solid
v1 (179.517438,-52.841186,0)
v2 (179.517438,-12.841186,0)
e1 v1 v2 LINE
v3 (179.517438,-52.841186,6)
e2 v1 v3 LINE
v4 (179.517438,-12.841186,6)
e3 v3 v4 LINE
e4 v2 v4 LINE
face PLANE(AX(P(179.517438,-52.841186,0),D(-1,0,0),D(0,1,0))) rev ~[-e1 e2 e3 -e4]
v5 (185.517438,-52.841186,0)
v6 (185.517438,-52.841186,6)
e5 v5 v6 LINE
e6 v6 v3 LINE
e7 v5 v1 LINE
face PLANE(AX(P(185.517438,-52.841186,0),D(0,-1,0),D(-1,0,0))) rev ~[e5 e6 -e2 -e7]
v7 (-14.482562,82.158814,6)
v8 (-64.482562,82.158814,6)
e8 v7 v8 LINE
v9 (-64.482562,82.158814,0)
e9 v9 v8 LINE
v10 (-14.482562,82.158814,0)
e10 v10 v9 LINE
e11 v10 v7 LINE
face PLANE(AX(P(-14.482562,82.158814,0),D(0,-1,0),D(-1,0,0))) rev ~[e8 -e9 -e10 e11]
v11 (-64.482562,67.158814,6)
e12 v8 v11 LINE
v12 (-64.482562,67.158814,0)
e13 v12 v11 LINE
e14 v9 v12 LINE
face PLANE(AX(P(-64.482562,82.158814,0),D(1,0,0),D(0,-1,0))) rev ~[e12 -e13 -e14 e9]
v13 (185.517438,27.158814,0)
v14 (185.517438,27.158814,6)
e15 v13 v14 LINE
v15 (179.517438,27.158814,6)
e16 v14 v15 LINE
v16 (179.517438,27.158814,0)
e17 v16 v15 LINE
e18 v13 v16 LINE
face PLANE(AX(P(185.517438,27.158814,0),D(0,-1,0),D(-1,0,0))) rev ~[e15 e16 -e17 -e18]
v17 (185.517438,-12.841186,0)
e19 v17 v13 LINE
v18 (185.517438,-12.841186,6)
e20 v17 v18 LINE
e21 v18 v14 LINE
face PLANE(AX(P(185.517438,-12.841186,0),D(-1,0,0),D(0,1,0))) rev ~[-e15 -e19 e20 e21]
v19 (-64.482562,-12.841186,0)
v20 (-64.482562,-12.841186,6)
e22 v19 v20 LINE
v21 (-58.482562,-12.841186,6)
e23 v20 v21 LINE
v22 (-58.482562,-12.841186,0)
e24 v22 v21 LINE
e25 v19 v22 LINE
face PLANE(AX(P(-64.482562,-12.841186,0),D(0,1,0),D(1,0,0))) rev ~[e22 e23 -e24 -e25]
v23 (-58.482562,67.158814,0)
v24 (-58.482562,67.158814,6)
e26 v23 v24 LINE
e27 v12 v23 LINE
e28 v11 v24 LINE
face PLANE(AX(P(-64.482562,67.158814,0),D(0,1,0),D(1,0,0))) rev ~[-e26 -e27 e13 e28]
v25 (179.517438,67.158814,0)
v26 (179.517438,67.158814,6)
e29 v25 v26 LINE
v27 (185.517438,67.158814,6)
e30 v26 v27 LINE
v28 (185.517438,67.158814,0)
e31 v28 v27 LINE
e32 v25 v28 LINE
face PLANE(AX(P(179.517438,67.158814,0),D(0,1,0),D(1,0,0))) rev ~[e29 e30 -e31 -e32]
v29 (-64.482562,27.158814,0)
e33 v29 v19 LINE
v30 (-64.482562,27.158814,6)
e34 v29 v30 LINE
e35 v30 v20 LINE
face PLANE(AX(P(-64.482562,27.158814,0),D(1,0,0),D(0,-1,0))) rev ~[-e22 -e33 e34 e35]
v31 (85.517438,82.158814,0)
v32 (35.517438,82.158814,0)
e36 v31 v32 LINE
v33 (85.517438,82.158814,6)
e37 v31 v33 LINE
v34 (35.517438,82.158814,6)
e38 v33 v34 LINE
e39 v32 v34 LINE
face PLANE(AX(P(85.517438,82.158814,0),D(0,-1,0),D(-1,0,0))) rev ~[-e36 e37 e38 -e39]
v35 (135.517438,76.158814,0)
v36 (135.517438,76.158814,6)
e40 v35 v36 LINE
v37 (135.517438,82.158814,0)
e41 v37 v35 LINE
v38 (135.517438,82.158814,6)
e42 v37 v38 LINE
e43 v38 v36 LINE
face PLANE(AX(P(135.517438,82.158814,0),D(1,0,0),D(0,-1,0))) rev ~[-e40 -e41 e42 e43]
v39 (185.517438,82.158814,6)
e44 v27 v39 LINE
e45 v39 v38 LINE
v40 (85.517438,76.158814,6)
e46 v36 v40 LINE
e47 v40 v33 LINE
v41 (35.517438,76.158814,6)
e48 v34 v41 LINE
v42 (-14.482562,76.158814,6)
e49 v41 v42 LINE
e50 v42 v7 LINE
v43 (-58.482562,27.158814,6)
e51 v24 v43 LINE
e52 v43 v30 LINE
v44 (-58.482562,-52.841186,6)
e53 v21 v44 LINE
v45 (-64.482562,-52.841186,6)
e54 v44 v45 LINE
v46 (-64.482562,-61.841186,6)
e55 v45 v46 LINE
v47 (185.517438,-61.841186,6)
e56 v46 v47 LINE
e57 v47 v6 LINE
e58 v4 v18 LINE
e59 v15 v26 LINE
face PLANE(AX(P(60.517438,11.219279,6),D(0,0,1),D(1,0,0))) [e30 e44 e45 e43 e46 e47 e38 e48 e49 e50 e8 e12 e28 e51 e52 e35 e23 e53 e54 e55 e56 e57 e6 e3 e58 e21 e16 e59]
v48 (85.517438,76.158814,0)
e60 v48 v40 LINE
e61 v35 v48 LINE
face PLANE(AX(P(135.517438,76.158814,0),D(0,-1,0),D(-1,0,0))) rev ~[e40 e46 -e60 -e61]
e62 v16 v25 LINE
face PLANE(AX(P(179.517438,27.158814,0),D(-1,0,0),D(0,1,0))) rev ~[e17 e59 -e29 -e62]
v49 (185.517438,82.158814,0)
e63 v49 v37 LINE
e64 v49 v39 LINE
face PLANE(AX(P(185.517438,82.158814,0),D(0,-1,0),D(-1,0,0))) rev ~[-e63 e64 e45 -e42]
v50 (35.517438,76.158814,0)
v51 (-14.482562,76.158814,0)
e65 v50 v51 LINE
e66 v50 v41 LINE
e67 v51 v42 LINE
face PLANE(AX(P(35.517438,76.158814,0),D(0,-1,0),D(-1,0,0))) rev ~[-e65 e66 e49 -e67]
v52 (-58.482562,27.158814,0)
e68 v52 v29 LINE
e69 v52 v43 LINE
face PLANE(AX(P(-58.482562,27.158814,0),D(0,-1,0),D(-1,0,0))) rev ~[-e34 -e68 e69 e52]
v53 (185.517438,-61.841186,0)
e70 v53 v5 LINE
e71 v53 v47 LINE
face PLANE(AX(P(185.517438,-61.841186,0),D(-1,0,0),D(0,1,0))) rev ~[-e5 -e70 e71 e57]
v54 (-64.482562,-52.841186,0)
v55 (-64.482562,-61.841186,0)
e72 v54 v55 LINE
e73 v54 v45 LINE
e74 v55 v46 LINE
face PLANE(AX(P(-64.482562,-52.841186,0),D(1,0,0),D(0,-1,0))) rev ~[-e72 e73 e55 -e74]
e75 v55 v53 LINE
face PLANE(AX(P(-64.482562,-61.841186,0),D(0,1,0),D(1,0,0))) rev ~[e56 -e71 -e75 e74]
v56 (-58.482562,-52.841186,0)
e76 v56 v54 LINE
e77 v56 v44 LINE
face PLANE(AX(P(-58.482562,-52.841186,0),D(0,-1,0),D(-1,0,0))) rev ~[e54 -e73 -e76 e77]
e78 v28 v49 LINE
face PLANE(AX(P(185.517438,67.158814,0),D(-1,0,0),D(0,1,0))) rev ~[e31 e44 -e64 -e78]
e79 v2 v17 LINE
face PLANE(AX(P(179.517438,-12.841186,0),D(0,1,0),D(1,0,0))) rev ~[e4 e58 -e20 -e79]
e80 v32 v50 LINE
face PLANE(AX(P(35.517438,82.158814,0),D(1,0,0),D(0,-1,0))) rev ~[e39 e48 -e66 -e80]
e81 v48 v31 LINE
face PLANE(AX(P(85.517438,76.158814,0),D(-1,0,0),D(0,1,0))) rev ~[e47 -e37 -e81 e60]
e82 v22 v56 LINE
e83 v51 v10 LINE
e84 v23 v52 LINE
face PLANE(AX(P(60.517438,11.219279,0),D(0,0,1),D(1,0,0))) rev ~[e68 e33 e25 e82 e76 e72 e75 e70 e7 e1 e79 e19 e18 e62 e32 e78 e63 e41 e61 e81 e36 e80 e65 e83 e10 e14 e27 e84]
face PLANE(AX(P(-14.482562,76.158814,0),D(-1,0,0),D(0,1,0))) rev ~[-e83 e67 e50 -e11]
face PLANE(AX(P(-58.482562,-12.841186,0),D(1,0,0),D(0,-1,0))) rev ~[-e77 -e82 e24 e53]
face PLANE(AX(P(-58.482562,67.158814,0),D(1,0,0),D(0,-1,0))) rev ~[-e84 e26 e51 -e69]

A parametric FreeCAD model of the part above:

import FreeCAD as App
import Part
import Sketcher
from FreeCAD import Vector


def add_polygon(sketch, points):
    """Adds a closed chain of lines whose ends are joined by coincident constraints."""
    first, n = sketch.GeometryCount, len(points)
    for a, b in zip(points, points[1:] + points[:1]):
        sketch.addGeometry(Part.LineSegment(App.Vector(*a, 0), App.Vector(*b, 0)), False)
    for i in range(n):
        sketch.addConstraint(Sketcher.Constraint("Coincident", first + i, 2, first + (i + 1) % n, 1))

doc = App.newDocument("Part")
params = doc.addObject("Spreadsheet::Sheet", "Params")
for row, (alias, value) in enumerate([
    ("sketch1_width", "6 mm"),
    ("sketch1_width2", "250 mm"),
    ("sketch1_height", "9 mm"),
    ("sketch1_height2", "40 mm"),
    ("sketch1_height3", "15 mm"),
    ("pad1_length", "6 mm"),
], start=1):
    params.set(f"A{row}", alias)
    params.set(f"B{row}", "=" + value)
    params.setAlias(f"B{row}", alias)

body = doc.addObject("PartDesign::Body", "Body")

# Sketch on XY plane
sketch1 = body.newObject("Sketcher::SketchObject", "Sketch")
sketch1.AttachmentSupport = (doc.getObject("XY_Plane"), [""])
sketch1.MapMode = "FlatFace"
add_polygon(sketch1, [(-58, -53), (-64, -53), (-64, -62), (186, -62), (186, -53), (180, -53), (180, -13), (186, -13), (186, 27), (180, 27), (180, 67), (186, 67), (186, 82), (136, 82), (136, 76), (86, 76), (86, 82), (36, 82), (36, 76), (-14, 76), (-14, 82), (-64, 82), (-64, 67), (-58, 67), (-58, 27), (-64, 27), (-64, -13), (-58, -13)])  # lines 0-27
sketch1.addConstraint(Sketcher.Constraint("Horizontal", 0))
sketch1.addConstraint(Sketcher.Constraint("Vertical", 1))
sketch1.addConstraint(Sketcher.Constraint("Horizontal", 2))
sketch1.addConstraint(Sketcher.Constraint("Vertical", 3))
sketch1.addConstraint(Sketcher.Constraint("Horizontal", 4))
sketch1.addConstraint(Sketcher.Constraint("Vertical", 5))
sketch1.addConstraint(Sketcher.Constraint("Horizontal", 6))
sketch1.addConstraint(Sketcher.Constraint("Vertical", 7))
sketch1.addConstraint(Sketcher.Constraint("Horizontal", 8))
sketch1.addConstraint(Sketcher.Constraint("Vertical", 9))
sketch1.addConstraint(Sketcher.Constraint("Horizontal", 10))
sketch1.addConstraint(Sketcher.Constraint("Vertical", 11))
sketch1.addConstraint(Sketcher.Constraint("Horizontal", 12))
sketch1.addConstraint(Sketcher.Constraint("Vertical", 13))
sketch1.addConstraint(Sketcher.Constraint("Horizontal", 14))
sketch1.addConstraint(Sketcher.Constraint("Vertical", 15))
sketch1.addConstraint(Sketcher.Constraint("Horizontal", 16))
sketch1.addConstraint(Sketcher.Constraint("Vertical", 17))
sketch1.addConstraint(Sketcher.Constraint("Horizontal", 18))
sketch1.addConstraint(Sketcher.Constraint("Vertical", 19))
sketch1.addConstraint(Sketcher.Constraint("Horizontal", 20))
sketch1.addConstraint(Sketcher.Constraint("Vertical", 21))
sketch1.addConstraint(Sketcher.Constraint("Horizontal", 22))
sketch1.addConstraint(Sketcher.Constraint("Vertical", 23))
sketch1.addConstraint(Sketcher.Constraint("Horizontal", 24))
sketch1.addConstraint(Sketcher.Constraint("Vertical", 25))
sketch1.addConstraint(Sketcher.Constraint("Horizontal", 26))
sketch1.addConstraint(Sketcher.Constraint("Vertical", 27))
sketch1.addConstraint(Sketcher.Constraint("Horizontal", 0, 2, 3, 2))
sketch1.addConstraint(Sketcher.Constraint("Horizontal", 12, 2, 15, 2))
sketch1.addConstraint(Sketcher.Constraint("Horizontal", 14, 2, 17, 2))
sketch1.addConstraint(Sketcher.Constraint("Horizontal", 16, 2, 19, 2))
sketch1.addConstraint(Sketcher.Constraint("Horizontal", 10, 2, 21, 2))
sketch1.addConstraint(Sketcher.Constraint("Horizontal", 8, 2, 23, 2))
sketch1.addConstraint(Sketcher.Constraint("Horizontal", 6, 2, 25, 2))
sketch1.addConstraint(Sketcher.Constraint("Vertical", 3, 2, 6, 2))
sketch1.addConstraint(Sketcher.Constraint("Vertical", 5, 2, 8, 2))
sketch1.addConstraint(Sketcher.Constraint("Vertical", 7, 2, 10, 2))
sketch1.addConstraint(Sketcher.Constraint("Vertical", 1, 2, 20, 2))
sketch1.addConstraint(Sketcher.Constraint("Vertical", 21, 2, 24, 2))
sketch1.addConstraint(Sketcher.Constraint("Vertical", 23, 2, 26, 2))
sketch1.addConstraint(Sketcher.Constraint("Equal", 0, 4))
sketch1.addConstraint(Sketcher.Constraint("Equal", 12, 14))
sketch1.addConstraint(Sketcher.Constraint("Equal", 14, 16))
sketch1.addConstraint(Sketcher.Constraint("Equal", 16, 18))
sketch1.addConstraint(Sketcher.Constraint("Equal", 18, 20))
sketch1.addConstraint(Sketcher.Constraint("Equal", 5, 7))
sketch1.addConstraint(Sketcher.Constraint("Equal", 7, 9))
sketch1.addConstraint(Sketcher.Constraint("Equal", 26, 13))
sketch1.addConstraint(Sketcher.Constraint("DistanceX", 0, 2, 0, 1, 6.0))
sketch1.addConstraint(Sketcher.Constraint("DistanceX", 2, 1, 2, 2, 250.0))
sketch1.addConstraint(Sketcher.Constraint("DistanceY", 1, 2, 1, 1, 9.0))
sketch1.addConstraint(Sketcher.Constraint("DistanceY", 5, 1, 5, 2, 40.0))
sketch1.addConstraint(Sketcher.Constraint("DistanceY", 11, 1, 11, 2, 15.0))
sketch1.addConstraint(Sketcher.Constraint("DistanceX", 0, 2, -1, 1, 64.482562))
sketch1.addConstraint(Sketcher.Constraint("DistanceY", 0, 2, -1, 1, 52.841186))
sketch1.setExpression("Constraints[77]", "Params.sketch1_width")
sketch1.setExpression("Constraints[78]", "Params.sketch1_width2")
sketch1.setExpression("Constraints[79]", "Params.sketch1_height")
sketch1.setExpression("Constraints[80]", "Params.sketch1_height2")
sketch1.setExpression("Constraints[81]", "Params.sketch1_height3")
pad1 = body.newObject("PartDesign::Pad", "Pad")
pad1.Profile = sketch1
pad1.setExpression("Length", "Params.pad1_length")

doc.recompute()
